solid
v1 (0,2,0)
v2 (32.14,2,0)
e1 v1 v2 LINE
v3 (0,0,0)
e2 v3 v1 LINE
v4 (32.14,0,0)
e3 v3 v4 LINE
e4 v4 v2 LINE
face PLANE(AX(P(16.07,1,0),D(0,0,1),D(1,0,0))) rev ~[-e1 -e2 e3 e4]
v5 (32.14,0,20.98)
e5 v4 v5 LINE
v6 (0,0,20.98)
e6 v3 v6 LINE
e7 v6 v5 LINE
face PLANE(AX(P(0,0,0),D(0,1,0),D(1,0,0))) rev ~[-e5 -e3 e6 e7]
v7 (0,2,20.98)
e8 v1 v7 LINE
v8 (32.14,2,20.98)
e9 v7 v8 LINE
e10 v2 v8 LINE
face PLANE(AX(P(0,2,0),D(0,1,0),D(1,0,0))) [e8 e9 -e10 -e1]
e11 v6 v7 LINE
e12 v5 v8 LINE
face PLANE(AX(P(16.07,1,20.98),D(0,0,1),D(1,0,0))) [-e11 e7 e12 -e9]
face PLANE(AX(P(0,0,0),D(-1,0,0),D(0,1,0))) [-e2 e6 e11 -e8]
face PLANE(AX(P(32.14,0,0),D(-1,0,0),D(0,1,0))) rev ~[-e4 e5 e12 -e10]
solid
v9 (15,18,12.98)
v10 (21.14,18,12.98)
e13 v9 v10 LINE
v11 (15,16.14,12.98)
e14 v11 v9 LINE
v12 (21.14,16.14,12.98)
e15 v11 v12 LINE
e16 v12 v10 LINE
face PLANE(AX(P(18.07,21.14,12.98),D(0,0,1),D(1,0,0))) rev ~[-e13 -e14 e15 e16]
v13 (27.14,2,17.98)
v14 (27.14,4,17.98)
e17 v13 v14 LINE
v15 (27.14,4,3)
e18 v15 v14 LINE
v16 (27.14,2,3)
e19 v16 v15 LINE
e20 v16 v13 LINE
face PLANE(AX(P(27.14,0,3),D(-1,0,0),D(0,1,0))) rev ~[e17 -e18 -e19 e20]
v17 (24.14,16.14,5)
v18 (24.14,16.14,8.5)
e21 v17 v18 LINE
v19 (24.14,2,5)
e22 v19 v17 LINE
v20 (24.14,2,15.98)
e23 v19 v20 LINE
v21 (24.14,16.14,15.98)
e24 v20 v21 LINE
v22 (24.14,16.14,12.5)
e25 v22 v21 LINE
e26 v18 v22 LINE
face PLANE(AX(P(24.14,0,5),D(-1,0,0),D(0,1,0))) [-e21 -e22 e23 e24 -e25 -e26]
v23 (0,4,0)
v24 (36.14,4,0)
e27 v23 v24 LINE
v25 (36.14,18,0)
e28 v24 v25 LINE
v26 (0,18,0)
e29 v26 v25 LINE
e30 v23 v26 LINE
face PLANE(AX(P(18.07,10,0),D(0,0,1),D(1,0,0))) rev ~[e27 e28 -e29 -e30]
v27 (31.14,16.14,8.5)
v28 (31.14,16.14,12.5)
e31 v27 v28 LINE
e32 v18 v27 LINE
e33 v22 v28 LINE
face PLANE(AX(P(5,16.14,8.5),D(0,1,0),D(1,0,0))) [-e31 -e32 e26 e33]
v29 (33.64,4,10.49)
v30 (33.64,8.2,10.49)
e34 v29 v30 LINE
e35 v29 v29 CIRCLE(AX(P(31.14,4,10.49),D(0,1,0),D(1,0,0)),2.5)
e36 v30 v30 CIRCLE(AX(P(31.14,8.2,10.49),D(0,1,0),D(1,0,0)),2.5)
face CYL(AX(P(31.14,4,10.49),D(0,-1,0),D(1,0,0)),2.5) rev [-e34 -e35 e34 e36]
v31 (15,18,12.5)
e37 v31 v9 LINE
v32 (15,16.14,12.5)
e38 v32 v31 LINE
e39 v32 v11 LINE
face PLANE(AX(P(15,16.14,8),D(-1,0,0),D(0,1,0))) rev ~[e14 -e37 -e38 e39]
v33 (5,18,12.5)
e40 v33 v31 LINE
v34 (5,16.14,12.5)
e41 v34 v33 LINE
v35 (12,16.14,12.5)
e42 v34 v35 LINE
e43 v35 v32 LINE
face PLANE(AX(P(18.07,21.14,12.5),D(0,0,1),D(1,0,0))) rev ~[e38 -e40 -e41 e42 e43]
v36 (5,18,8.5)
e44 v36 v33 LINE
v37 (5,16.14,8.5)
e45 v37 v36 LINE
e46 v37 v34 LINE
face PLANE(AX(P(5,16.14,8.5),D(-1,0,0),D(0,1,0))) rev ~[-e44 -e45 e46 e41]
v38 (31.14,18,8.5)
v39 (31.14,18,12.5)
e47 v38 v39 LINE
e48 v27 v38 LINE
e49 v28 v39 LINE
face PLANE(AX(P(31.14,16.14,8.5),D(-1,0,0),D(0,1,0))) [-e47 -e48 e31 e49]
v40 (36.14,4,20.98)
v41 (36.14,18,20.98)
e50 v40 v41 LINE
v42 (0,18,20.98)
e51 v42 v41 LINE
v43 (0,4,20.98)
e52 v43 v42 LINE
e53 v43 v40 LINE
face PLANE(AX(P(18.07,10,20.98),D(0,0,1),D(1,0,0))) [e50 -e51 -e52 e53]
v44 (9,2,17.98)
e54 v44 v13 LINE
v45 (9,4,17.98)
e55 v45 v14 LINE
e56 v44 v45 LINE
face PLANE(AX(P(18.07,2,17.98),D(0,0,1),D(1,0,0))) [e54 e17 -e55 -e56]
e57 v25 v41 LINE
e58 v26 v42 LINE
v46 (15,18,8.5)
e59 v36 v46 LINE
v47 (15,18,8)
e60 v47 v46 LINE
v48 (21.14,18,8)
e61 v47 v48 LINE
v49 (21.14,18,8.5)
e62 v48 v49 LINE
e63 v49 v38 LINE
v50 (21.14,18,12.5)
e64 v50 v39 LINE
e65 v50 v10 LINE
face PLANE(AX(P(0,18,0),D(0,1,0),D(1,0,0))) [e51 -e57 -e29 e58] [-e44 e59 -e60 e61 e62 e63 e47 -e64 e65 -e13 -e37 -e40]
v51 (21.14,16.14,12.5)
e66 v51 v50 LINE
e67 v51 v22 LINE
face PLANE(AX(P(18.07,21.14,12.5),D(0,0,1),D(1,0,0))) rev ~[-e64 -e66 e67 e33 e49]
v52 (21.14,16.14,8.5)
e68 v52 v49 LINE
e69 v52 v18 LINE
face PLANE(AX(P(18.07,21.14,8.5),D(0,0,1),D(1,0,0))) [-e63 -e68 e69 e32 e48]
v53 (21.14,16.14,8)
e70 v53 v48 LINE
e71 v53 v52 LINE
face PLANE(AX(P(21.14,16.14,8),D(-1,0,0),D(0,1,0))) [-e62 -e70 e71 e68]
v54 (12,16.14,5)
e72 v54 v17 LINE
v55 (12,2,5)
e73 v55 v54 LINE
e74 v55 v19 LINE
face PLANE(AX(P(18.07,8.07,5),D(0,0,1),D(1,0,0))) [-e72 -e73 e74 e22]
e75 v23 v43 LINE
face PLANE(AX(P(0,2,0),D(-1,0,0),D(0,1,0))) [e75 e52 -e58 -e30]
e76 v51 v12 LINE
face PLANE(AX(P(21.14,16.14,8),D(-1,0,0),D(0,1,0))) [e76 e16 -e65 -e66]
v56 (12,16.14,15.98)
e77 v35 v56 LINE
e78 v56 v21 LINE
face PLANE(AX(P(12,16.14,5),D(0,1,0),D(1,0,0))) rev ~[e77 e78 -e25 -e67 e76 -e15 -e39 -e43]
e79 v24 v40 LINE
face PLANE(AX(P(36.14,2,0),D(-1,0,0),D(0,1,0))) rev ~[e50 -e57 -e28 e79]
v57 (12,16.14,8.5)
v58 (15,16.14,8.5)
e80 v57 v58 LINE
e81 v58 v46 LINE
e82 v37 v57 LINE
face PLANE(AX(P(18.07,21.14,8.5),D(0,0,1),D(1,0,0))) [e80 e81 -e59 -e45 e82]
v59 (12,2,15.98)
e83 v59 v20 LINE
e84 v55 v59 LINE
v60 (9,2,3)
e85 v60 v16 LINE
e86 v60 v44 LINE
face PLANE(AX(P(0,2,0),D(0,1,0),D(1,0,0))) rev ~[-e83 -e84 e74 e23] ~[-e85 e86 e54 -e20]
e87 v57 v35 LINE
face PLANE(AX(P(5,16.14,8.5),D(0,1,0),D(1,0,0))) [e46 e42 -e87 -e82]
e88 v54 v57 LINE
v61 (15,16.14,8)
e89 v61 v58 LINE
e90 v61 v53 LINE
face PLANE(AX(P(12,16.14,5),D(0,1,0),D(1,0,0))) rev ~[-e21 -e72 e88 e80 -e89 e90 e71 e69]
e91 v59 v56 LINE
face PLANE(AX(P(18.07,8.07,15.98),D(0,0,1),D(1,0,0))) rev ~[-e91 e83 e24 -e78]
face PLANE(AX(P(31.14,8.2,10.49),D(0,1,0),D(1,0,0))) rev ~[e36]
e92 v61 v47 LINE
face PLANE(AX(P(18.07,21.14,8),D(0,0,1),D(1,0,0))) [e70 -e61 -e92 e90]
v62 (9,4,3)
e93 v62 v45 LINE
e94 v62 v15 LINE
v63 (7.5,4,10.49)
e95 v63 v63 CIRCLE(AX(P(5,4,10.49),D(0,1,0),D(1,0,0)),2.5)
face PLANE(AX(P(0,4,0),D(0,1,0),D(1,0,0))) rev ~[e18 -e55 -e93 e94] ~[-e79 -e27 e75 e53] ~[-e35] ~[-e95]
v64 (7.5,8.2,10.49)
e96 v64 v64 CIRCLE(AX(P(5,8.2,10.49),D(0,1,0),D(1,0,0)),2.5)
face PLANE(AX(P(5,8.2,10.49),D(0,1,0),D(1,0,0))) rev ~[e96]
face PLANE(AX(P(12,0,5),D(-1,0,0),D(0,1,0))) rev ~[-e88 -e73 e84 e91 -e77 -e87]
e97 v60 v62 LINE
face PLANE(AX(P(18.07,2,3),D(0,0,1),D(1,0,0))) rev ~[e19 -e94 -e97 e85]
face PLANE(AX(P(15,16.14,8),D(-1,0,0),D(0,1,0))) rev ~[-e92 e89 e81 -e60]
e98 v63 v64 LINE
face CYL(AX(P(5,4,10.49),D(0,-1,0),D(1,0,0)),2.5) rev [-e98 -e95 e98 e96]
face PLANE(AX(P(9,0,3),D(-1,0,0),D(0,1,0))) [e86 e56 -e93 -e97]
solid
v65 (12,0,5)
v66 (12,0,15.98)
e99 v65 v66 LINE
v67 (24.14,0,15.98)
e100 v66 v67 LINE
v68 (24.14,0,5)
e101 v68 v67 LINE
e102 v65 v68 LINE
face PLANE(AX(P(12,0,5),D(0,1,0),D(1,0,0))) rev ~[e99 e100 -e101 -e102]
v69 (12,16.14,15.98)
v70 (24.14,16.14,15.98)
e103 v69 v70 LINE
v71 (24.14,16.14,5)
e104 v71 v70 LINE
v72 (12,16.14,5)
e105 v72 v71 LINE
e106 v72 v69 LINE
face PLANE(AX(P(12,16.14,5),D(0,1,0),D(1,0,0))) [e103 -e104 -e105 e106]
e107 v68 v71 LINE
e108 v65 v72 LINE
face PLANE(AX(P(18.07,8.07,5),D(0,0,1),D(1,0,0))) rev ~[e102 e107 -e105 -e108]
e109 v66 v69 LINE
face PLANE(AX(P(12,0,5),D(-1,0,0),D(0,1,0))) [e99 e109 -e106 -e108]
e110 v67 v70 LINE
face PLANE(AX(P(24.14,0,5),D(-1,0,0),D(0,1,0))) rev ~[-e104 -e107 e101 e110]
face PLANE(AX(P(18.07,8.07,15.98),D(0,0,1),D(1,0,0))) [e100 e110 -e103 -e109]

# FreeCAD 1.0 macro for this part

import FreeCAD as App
import Part
import Sketcher
Q = App.Units.Quantity

doc = App.newDocument("Part")
body = doc.addObject("PartDesign::Body", "Body")

sketch1 = body.newObject("Sketcher::SketchObject", "Sketch")
sketch1.AttachmentSupport = (doc.getObject("XY_Plane"), [""])
sketch1.MapMode = "FlatFace"
sketch1.AttachmentOffset = App.Placement(App.Vector(0, 0, 5), App.Rotation())
sketch1.addGeometry([
    Part.LineSegment(App.Vector(12, 16, 0), App.Vector(12, 0, 0)),
    Part.LineSegment(App.Vector(12, 0, 0), App.Vector(24, 0, 0)),
    Part.LineSegment(App.Vector(24, 0, 0), App.Vector(24, 16, 0)),
    Part.LineSegment(App.Vector(24, 16, 0), App.Vector(12, 16, 0)),
], False)
sketch1.addConstraint([
    Sketcher.Constraint("Coincident", 0, 2, 1, 1),
    Sketcher.Constraint("Coincident", 1, 2, 2, 1),
    Sketcher.Constraint("Coincident", 2, 2, 3, 1),
    Sketcher.Constraint("Coincident", 3, 2, 0, 1),
    Sketcher.Constraint("Vertical", 0),
    Sketcher.Constraint("Horizontal", 1),
    Sketcher.Constraint("Vertical", 2),
    Sketcher.Constraint("Horizontal", 3),
    Sketcher.Constraint("PointOnObject", 0, 2, -1),
    Sketcher.Constraint("DistanceX", -1, 1, 0, 2, Q("12 mm")),
    Sketcher.Constraint("DistanceX", 1, 1, 1, 2, Q("12.14 mm")),
    Sketcher.Constraint("DistanceY", 0, 2, 0, 1, Q("16.14 mm")),
])
pad1 = body.newObject("PartDesign::Pad", "Pad")
pad1.Profile = sketch1
pad1.Length = 10.98
body2 = doc.addObject("PartDesign::Body", "Body001")

sketch2 = body2.newObject("Sketcher::SketchObject", "Sketch001")
sketch2.AttachmentSupport = (doc.getObject("XY_Plane001"), [""])
sketch2.MapMode = "FlatFace"
sketch2.addGeometry([
    Part.LineSegment(App.Vector(0, 2, 0), App.Vector(0, 0, 0)),
    Part.LineSegment(App.Vector(0, 0, 0), App.Vector(32.1, 0, 0)),
    Part.LineSegment(App.Vector(32.1, 0, 0), App.Vector(32.1, 2, 0)),
    Part.LineSegment(App.Vector(32.1, 2, 0), App.Vector(0, 2, 0)),
], False)
sketch2.addConstraint([
    Sketcher.Constraint("Coincident", 0, 2, 1, 1),
    Sketcher.Constraint("Coincident", 1, 2, 2, 1),
    Sketcher.Constraint("Coincident", 2, 2, 3, 1),
    Sketcher.Constraint("Coincident", 3, 2, 0, 1),
    Sketcher.Constraint("Vertical", 0),
    Sketcher.Constraint("Horizontal", 1),
    Sketcher.Constraint("Vertical", 2),
    Sketcher.Constraint("Horizontal", 3),
    Sketcher.Constraint("Coincident", 0, 2, -1, 1),
    Sketcher.Constraint("DistanceY", 0, 2, 0, 1, Q("2 mm")),
    Sketcher.Constraint("DistanceX", 1, 1, 1, 2, Q("32.14 mm")),
])
pad2 = body2.newObject("PartDesign::Pad", "Pad001")
pad2.Profile = sketch2
pad2.Length = 20.98
body3 = doc.addObject("PartDesign::Body", "Body002")

sketch3 = body3.newObject("Sketcher::SketchObject", "Sketch002")
sketch3.AttachmentSupport = (doc.getObject("XZ_Plane002"), [""])
sketch3.MapMode = "FlatFace"
sketch3.AttachmentOffset = App.Placement(App.Vector(0, 0, -4), App.Rotation())
sketch3.addGeometry(Part.Circle(App.Vector(31.1, 10.5, 0), App.Vector(0, 0, 1), 2.5), False)
sketch3.addConstraint([
    Sketcher.Constraint("Diameter", 0, Q("5 mm")),
    Sketcher.Constraint("DistanceX", -1, 1, 0, 3, Q("31.14 mm")),
    Sketcher.Constraint("DistanceY", -1, 1, 0, 3, Q("10.49 mm")),
])
pad3 = body3.newObject("PartDesign::Pad", "Pad002")
pad3.Profile = sketch3
pad3.Length = 4.2
pad3.Reversed = True
body4 = doc.addObject("PartDesign::Body", "Body003")

sketch4 = body4.newObject("Sketcher::SketchObject", "Sketch003")
sketch4.AttachmentSupport = (doc.getObject("XZ_Plane003"), [""])
sketch4.MapMode = "FlatFace"
sketch4.AttachmentOffset = App.Placement(App.Vector(0, 0, -4), App.Rotation())
sketch4.addGeometry(Part.Circle(App.Vector(5, 10.5, 0), App.Vector(0, 0, 1), 2.5), False)
sketch4.addConstraint([
    Sketcher.Constraint("Diameter", 0, Q("5 mm")),
    Sketcher.Constraint("DistanceX", -1, 1, 0, 3, Q("5 mm")),
    Sketcher.Constraint("DistanceY", -1, 1, 0, 3, Q("10.49 mm")),
])
pad4 = body4.newObject("PartDesign::Pad", "Pad003")
pad4.Profile = sketch4
pad4.Length = 4.2
pad4.Reversed = True
body5 = doc.addObject("PartDesign::Body", "Body004")

sketch5 = body5.newObject("Sketcher::SketchObject", "Sketch004")
sketch5.AttachmentSupport = (doc.getObject("XY_Plane004"), [""])
sketch5.MapMode = "FlatFace"
sketch5.AttachmentOffset = App.Placement(App.Vector(0, 0, 3), App.Rotation())
sketch5.addGeometry([
    Part.LineSegment(App.Vector(9, 4, 0), App.Vector(9, 0, 0)),
    Part.LineSegment(App.Vector(9, 0, 0), App.Vector(27.1, 0, 0)),
    Part.LineSegment(App.Vector(27.1, 0, 0), App.Vector(27.1, 4, 0)),
    Part.LineSegment(App.Vector(27.1, 4, 0), App.Vector(9, 4, 0)),
], False)
sketch5.addConstraint([
    Sketcher.Constraint("Coincident", 0, 2, 1, 1),
    Sketcher.Constraint("Coincident", 1, 2, 2, 1),
    Sketcher.Constraint("Coincident", 2, 2, 3, 1),
    Sketcher.Constraint("Coincident", 3, 2, 0, 1),
    Sketcher.Constraint("Vertical", 0),
    Sketcher.Constraint("Horizontal", 1),
    Sketcher.Constraint("Vertical", 2),
    Sketcher.Constraint("Horizontal", 3),
    Sketcher.Constraint("PointOnObject", 0, 2, -1),
    Sketcher.Constraint("DistanceY", 0, 2, 0, 1, Q("4 mm")),
    Sketcher.Constraint("DistanceX", -1, 1, 0, 2, Q("9 mm")),
    Sketcher.Constraint("DistanceX", 1, 1, 1, 2, Q("18.14 mm")),
])
pad5 = body5.newObject("PartDesign::Pad", "Pad004")
pad5.Profile = sketch5
pad5.Length = 14.98
body6 = doc.addObject("PartDesign::Body", "Body005")

sketch6 = body6.newObject("Sketcher::SketchObject", "Sketch005")
sketch6.AttachmentSupport = (doc.getObject("XY_Plane005"), [""])
sketch6.MapMode = "FlatFace"
sketch6.addGeometry([
    Part.LineSegment(App.Vector(0, 4, 0), App.Vector(0, 0, 0)),
    Part.LineSegment(App.Vector(0, 0, 0), App.Vector(36.1, 0, 0)),
    Part.LineSegment(App.Vector(36.1, 0, 0), App.Vector(36.1, 4, 0)),
    Part.LineSegment(App.Vector(36.1, 4, 0), App.Vector(0, 4, 0)),
], False)
sketch6.addConstraint([
    Sketcher.Constraint("Coincident", 0, 2, 1, 1),
    Sketcher.Constraint("Coincident", 1, 2, 2, 1),
    Sketcher.Constraint("Coincident", 2, 2, 3, 1),
    Sketcher.Constraint("Coincident", 3, 2, 0, 1),
    Sketcher.Constraint("Vertical", 0),
    Sketcher.Constraint("Horizontal", 1),
    Sketcher.Constraint("Vertical", 2),
    Sketcher.Constraint("Horizontal", 3),
    Sketcher.Constraint("Coincident", 0, 2, -1, 1),
    Sketcher.Constraint("DistanceY", 0, 2, 0, 1, Q("4 mm")),
    Sketcher.Constraint("DistanceX", 1, 1, 1, 2, Q("36.14 mm")),
])
pad6 = body6.newObject("PartDesign::Pad", "Pad005")
pad6.Profile = sketch6
pad6.Length = 20.98
doc.recompute()

boolean = body6.newObject("PartDesign::Boolean", "Boolean")
boolean.Type = "Cut"
boolean.addObjects([body5])
body7 = doc.addObject("PartDesign::Body", "Body006")

sketch7 = body7.newObject("Sketcher::SketchObject", "Sketch006")
sketch7.AttachmentSupport = (doc.getObject("XY_Plane006"), [""])
sketch7.MapMode = "FlatFace"
sketch7.AttachmentOffset = App.Placement(App.Vector(0, 0, 8.5), App.Rotation())
sketch7.addGeometry([
    Part.LineSegment(App.Vector(5, 26, 0), App.Vector(5, 16, 0)),
    Part.LineSegment(App.Vector(5, 16, 0), App.Vector(31, 16, 0)),
    Part.LineSegment(App.Vector(31, 16, 0), App.Vector(31, 26, 0)),
    Part.LineSegment(App.Vector(31, 26, 0), App.Vector(5, 26, 0)),
], False)
sketch7.addConstraint([
    Sketcher.Constraint("Coincident", 0, 2, 1, 1),
    Sketcher.Constraint("Coincident", 1, 2, 2, 1),
    Sketcher.Constraint("Coincident", 2, 2, 3, 1),
    Sketcher.Constraint("Coincident", 3, 2, 0, 1),
    Sketcher.Constraint("Vertical", 0),
    Sketcher.Constraint("Horizontal", 1),
    Sketcher.Constraint("Vertical", 2),
    Sketcher.Constraint("Horizontal", 3),
    Sketcher.Constraint("DistanceY", 0, 2, 0, 1, Q("10 mm")),
    Sketcher.Constraint("DistanceX", -1, 1, 0, 2, Q("5 mm")),
    Sketcher.Constraint("DistanceX", 1, 1, 1, 2, Q("26.14 mm")),
    Sketcher.Constraint("DistanceY", -1, 1, 0, 2, Q("16.14 mm")),
])
pad7 = body7.newObject("PartDesign::Pad", "Pad006")
pad7.Profile = sketch7
pad7.Length = 4
body8 = doc.addObject("PartDesign::Body", "Body007")

sketch8 = body8.newObject("Sketcher::SketchObject", "Sketch007")
sketch8.AttachmentSupport = (doc.getObject("XY_Plane007"), [""])
sketch8.MapMode = "FlatFace"
sketch8.AttachmentOffset = App.Placement(App.Vector(0, 0, 8), App.Rotation())
sketch8.addGeometry([
    Part.LineSegment(App.Vector(15, 26, 0), App.Vector(15, 16, 0)),
    Part.LineSegment(App.Vector(15, 16, 0), App.Vector(21, 16, 0)),
    Part.LineSegment(App.Vector(21, 16, 0), App.Vector(21, 26, 0)),
    Part.LineSegment(App.Vector(21, 26, 0), App.Vector(15, 26, 0)),
], False)
sketch8.addConstraint([
    Sketcher.Constraint("Coincident", 0, 2, 1, 1),
    Sketcher.Constraint("Coincident", 1, 2, 2, 1),
    Sketcher.Constraint("Coincident", 2, 2, 3, 1),
    Sketcher.Constraint("Coincident", 3, 2, 0, 1),
    Sketcher.Constraint("Vertical", 0),
    Sketcher.Constraint("Horizontal", 1),
    Sketcher.Constraint("Vertical", 2),
    Sketcher.Constraint("Horizontal", 3),
    Sketcher.Constraint("DistanceY", 0, 2, 0, 1, Q("10 mm")),
    Sketcher.Constraint("DistanceX", -1, 1, 0, 2, Q("15 mm")),
    Sketcher.Constraint("DistanceX", 1, 1, 1, 2, Q("6.14 mm")),
    Sketcher.Constraint("DistanceY", -1, 1, 0, 2, Q("16.14 mm")),
])
pad8 = body8.newObject("PartDesign::Pad", "Pad007")
pad8.Profile = sketch8
pad8.Length = 4.98
body9 = doc.addObject("PartDesign::Body", "Body008")

sketch9 = body9.newObject("Sketcher::SketchObject", "Sketch008")
sketch9.AttachmentSupport = (doc.getObject("XY_Plane008"), [""])
sketch9.MapMode = "FlatFace"
sketch9.AttachmentOffset = App.Placement(App.Vector(0, 0, 5), App.Rotation())
sketch9.addGeometry([
    Part.LineSegment(App.Vector(12, 16, 0), App.Vector(12, 0, 0)),
    Part.LineSegment(App.Vector(12, 0, 0), App.Vector(24, 0, 0)),
    Part.LineSegment(App.Vector(24, 0, 0), App.Vector(24, 16, 0)),
    Part.LineSegment(App.Vector(24, 16, 0), App.Vector(12, 16, 0)),
], False)
sketch9.addConstraint([
    Sketcher.Constraint("Coincident", 0, 2, 1, 1),
    Sketcher.Constraint("Coincident", 1, 2, 2, 1),
    Sketcher.Constraint("Coincident", 2, 2, 3, 1),
    Sketcher.Constraint("Coincident", 3, 2, 0, 1),
    Sketcher.Constraint("Vertical", 0),
    Sketcher.Constraint("Horizontal", 1),
    Sketcher.Constraint("Vertical", 2),
    Sketcher.Constraint("Horizontal", 3),
    Sketcher.Constraint("PointOnObject", 0, 2, -1),
    Sketcher.Constraint("DistanceX", -1, 1, 0, 2, Q("12 mm")),
    Sketcher.Constraint("DistanceX", 1, 1, 1, 2, Q("12.14 mm")),
    Sketcher.Constraint("DistanceY", 0, 2, 0, 1, Q("16.14 mm")),
])
pad9 = body9.newObject("PartDesign::Pad", "Pad008")
pad9.Profile = sketch9
pad9.Length = 10.98
body10 = doc.addObject("PartDesign::Body", "Body009")

sketch10 = body10.newObject("Sketcher::SketchObject", "Sketch009")
sketch10.AttachmentSupport = (doc.getObject("XY_Plane009"), [""])
sketch10.MapMode = "FlatFace"
sketch10.addGeometry([
    Part.LineSegment(App.Vector(0, 18, 0), App.Vector(0, 2, 0)),
    Part.LineSegment(App.Vector(0, 2, 0), App.Vector(36, 2, 0)),
    Part.LineSegment(App.Vector(36, 2, 0), App.Vector(36, 18, 0)),
    Part.LineSegment(App.Vector(36, 18, 0), App.Vector(0, 18, 0)),
], False)
sketch10.addConstraint([
    Sketcher.Constraint("Coincident", 0, 2, 1, 1),
    Sketcher.Constraint("Coincident", 1, 2, 2, 1),
    Sketcher.Constraint("Coincident", 2, 2, 3, 1),
    Sketcher.Constraint("Coincident", 3, 2, 0, 1),
    Sketcher.Constraint("Vertical", 0),
    Sketcher.Constraint("Horizontal", 1),
    Sketcher.Constraint("Vertical", 2),
    Sketcher.Constraint("Horizontal", 3),
    Sketcher.Constraint("PointOnObject", 0, 2, -2),
    Sketcher.Constraint("DistanceY", 0, 2, 0, 1, Q("16 mm")),
    Sketcher.Constraint("DistanceY", -1, 1, 0, 2, Q("2 mm")),
    Sketcher.Constraint("DistanceX", 1, 1, 1, 2, Q("36.14 mm")),
])
pad10 = body10.newObject("PartDesign::Pad", "Pad009")
pad10.Profile = sketch10
pad10.Length = 20.98
doc.recompute()

boolean2 = body10.newObject("PartDesign::Boolean", "Boolean001")
boolean2.Type = "Cut"
boolean2.addObjects([body9])
doc.recompute()

boolean3 = body10.newObject("PartDesign::Boolean", "Boolean002")
boolean3.Type = "Cut"
boolean3.addObjects([body8])
doc.recompute()

boolean4 = body10.newObject("PartDesign::Boolean", "Boolean003")
boolean4.Type = "Cut"
boolean4.addObjects([body7])
doc.recompute()

boolean5 = body10.newObject("PartDesign::Boolean", "Boolean004")
boolean5.Type = "Cut"
boolean5.addObjects([body6])
doc.recompute()

boolean6 = body10.newObject("PartDesign::Boolean", "Boolean005")
boolean6.Type = "Cut"
boolean6.addObjects([body4])
doc.recompute()

boolean7 = body10.newObject("PartDesign::Boolean", "Boolean006")
boolean7.Type = "Cut"
boolean7.addObjects([body3])

doc.recompute()
